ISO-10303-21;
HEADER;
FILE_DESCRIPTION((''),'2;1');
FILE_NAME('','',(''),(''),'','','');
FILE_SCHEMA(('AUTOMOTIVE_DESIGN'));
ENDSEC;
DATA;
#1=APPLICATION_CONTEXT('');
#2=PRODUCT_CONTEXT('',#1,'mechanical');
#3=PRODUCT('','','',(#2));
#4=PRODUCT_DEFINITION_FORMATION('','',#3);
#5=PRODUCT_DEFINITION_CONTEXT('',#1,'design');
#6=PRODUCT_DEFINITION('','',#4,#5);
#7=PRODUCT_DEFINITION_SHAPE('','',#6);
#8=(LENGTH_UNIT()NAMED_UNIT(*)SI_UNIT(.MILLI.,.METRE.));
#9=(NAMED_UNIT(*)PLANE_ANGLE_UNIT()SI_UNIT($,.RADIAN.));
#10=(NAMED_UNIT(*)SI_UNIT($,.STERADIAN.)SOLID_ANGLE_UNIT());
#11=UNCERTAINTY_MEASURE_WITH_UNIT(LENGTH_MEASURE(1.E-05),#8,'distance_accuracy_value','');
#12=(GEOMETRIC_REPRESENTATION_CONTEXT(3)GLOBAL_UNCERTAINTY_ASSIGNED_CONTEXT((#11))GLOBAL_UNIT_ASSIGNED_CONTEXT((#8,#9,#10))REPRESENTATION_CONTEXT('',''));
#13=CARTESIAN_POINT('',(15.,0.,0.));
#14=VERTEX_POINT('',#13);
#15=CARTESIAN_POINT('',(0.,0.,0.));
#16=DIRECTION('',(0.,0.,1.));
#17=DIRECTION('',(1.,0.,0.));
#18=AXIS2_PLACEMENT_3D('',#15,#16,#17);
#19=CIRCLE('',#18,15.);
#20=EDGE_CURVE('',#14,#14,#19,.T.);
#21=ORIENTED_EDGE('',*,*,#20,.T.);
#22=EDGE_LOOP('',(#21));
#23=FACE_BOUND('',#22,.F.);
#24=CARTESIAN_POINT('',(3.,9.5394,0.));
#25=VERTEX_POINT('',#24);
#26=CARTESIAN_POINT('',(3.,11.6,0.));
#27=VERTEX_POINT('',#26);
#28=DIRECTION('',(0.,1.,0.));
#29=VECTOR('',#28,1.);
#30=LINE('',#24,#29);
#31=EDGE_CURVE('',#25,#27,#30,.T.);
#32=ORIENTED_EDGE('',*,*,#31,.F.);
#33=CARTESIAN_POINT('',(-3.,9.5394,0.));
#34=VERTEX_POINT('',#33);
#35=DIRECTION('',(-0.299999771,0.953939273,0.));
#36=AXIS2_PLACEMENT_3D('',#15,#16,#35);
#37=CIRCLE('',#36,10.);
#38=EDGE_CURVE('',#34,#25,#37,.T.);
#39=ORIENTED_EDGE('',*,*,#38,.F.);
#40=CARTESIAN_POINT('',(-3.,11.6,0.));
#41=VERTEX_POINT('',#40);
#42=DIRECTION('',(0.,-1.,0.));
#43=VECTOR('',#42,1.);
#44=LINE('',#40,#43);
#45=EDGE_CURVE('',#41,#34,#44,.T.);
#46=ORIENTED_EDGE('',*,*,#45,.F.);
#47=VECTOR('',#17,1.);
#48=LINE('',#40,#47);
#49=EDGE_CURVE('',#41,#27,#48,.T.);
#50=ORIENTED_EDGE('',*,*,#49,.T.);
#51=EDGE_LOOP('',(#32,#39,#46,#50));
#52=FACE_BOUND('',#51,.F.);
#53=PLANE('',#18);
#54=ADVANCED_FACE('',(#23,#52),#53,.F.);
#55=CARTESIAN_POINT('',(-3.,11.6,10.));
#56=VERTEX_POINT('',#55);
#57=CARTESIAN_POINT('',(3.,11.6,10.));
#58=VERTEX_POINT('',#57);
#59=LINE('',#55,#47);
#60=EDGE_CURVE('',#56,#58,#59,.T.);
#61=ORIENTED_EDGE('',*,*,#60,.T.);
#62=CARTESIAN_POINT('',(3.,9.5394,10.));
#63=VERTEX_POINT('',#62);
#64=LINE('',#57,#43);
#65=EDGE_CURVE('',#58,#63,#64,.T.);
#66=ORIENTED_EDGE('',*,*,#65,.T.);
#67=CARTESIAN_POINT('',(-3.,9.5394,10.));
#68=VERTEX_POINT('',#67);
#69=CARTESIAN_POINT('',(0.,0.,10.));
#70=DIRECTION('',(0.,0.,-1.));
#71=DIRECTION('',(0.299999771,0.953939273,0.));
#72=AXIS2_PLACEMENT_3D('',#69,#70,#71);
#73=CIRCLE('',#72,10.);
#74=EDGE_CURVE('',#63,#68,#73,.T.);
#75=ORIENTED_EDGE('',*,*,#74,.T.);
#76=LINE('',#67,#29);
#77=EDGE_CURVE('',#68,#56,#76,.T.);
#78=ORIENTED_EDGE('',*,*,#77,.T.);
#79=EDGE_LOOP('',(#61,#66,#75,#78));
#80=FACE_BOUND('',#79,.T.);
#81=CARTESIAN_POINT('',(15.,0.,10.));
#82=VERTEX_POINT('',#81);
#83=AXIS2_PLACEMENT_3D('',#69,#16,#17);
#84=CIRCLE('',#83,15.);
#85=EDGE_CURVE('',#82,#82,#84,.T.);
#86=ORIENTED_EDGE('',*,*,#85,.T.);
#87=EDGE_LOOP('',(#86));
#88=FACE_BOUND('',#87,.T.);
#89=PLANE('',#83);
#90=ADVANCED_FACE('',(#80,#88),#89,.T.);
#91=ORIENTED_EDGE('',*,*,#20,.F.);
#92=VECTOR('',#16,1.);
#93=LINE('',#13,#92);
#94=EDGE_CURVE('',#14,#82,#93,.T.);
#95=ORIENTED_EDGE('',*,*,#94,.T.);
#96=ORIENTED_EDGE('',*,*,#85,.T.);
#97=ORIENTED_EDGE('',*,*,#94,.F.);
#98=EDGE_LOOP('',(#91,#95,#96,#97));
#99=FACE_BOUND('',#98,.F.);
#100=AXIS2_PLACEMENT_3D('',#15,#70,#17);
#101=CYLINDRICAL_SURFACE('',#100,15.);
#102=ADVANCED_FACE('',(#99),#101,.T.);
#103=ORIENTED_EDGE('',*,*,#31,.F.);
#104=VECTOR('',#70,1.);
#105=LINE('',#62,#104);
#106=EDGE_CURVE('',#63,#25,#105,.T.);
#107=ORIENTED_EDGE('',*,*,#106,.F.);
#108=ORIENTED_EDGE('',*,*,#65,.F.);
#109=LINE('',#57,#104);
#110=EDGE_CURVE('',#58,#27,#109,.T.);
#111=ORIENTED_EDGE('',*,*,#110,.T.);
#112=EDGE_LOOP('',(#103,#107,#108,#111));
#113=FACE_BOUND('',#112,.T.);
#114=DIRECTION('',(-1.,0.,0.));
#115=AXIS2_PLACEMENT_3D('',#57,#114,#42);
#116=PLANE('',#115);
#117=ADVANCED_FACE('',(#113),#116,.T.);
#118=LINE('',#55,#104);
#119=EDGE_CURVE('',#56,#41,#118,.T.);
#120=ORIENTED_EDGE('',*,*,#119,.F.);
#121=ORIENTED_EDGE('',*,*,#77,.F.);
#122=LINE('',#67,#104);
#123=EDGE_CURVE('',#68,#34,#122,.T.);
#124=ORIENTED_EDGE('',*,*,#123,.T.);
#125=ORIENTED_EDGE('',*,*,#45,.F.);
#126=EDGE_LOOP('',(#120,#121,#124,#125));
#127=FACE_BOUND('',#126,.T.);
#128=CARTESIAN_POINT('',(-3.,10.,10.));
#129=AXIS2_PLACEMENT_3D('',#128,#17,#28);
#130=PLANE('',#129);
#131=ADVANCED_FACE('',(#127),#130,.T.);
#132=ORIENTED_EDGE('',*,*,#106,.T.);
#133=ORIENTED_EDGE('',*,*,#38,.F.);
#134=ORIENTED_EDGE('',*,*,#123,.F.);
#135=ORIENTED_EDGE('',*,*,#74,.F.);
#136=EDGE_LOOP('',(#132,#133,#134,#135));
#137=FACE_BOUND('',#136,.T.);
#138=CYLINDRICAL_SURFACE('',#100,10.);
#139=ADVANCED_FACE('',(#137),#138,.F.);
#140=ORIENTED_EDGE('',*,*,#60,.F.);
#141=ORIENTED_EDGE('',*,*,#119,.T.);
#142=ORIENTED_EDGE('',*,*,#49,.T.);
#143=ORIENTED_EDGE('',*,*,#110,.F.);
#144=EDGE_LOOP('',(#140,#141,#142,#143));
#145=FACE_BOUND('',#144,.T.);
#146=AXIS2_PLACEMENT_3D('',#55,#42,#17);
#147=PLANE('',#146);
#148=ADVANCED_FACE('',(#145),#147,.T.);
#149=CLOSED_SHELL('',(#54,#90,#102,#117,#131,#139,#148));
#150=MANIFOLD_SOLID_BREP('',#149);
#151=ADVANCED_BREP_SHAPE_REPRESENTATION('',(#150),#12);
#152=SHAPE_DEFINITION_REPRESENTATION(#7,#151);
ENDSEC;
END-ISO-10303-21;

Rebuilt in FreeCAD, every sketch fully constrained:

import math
import FreeCAD as App
import Part
import Sketcher
from FreeCAD import Vector
Q = App.Units.Quantity

doc = App.newDocument("Part")
body = doc.addObject("PartDesign::Body", "Body")

sketch1 = body.newObject("Sketcher::SketchObject", "Sketch")
sketch1.AttachmentSupport = (doc.getObject("XY_Plane"), [""])
sketch1.MapMode = "FlatFace"
sketch1.addGeometry([
    Part.Circle(Vector(0, 0, 0), Vector(0, 0, 1), 15),
    Part.Circle(Vector(0, 0, 0), Vector(0, 0, 1), 10),
], False)
sketch1.addConstraint([
    Sketcher.Constraint("Coincident", 0, 3, -1, 1),
    Sketcher.Constraint("Coincident", 1, 3, -1, 1),
    Sketcher.Constraint("Diameter", 0, Q("30 mm")),
    Sketcher.Constraint("Diameter", 1, Q("20 mm")),
])
pad1 = body.newObject("PartDesign::Pad", "Pad")
pad1.Profile = sketch1
pad1.Length = 10

sketch2 = body.newObject("Sketcher::SketchObject", "Sketch001")
sketch2.AttachmentSupport = (doc.getObject("XY_Plane"), [""])
sketch2.MapMode = "FlatFace"
sketch2.AttachmentOffset = App.Placement(Vector(0, 0, 10), App.Rotation())
sketch2.addGeometry([
    Part.LineSegment(Vector(3, 11.6, 0), Vector(-3, 11.6, 0)),
    Part.LineSegment(Vector(-3, 11.6, 0), Vector(-3, 9.5, 0)),
    Part.ArcOfCircle(Part.Circle(Vector(0, 0, 0), Vector(0, 0, 1), 10), math.radians(73), math.radians(107)),
    Part.LineSegment(Vector(3, 9.5, 0), Vector(3, 11.6, 0)),
], False)
sketch2.addConstraint([
    Sketcher.Constraint("Coincident", 0, 2, 1, 1),
    Sketcher.Constraint("Coincident", 1, 2, 2, 2),
    Sketcher.Constraint("Coincident", 2, 1, 3, 1),
    Sketcher.Constraint("Coincident", 3, 2, 0, 1),
    Sketcher.Constraint("Horizontal", 0),
    Sketcher.Constraint("Vertical", 1),
    Sketcher.Constraint("Vertical", 3),
    Sketcher.Constraint("Coincident", 2, 3, -1, 1),
    Sketcher.Constraint("Horizontal", 1, 2, 2, 1),
    Sketcher.Constraint("DistanceX", 0, 2, 0, 1, Q("6 mm")),
    Sketcher.Constraint("Radius", 2, Q("10 mm")),
    Sketcher.Constraint("DistanceY", -1, 1, 0, 2, Q("11.6 mm")),
])
pocket1 = body.newObject("PartDesign::Pocket", "Pocket")
pocket1.Profile = sketch2
pocket1.Length = 10

doc.recompute()
